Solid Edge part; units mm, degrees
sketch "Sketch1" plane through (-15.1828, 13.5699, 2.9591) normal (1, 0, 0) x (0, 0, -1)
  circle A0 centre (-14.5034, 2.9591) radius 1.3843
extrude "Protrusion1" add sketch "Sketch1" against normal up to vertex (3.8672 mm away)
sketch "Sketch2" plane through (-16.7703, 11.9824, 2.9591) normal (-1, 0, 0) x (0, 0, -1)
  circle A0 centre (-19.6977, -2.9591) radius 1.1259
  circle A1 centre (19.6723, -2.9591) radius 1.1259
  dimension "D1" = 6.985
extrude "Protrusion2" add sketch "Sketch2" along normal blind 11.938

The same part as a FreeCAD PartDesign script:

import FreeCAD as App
import Part
import Sketcher

V = App.Vector
Q = App.Units.Quantity

doc = App.newDocument("Part")
body = doc.addObject("PartDesign::Body", "Body")
body.AllowCompound = True

sketch1 = body.newObject("Sketcher::SketchObject", "Sketch")
sketch1.AttachmentSupport = (doc.getObject("YZ_Plane"), [""])
sketch1.MapMode = "FlatFace"
sketch1.AttachmentOffset = App.Placement(V(0, 0, -15.1828), App.Rotation())
sketch1.addGeometry(Part.Circle(V(16.5, 17.5, 0), V(0, 0, 1), 1.4), False)
sketch1.addConstraint([
    Sketcher.Constraint("Diameter", 0, Q("0.109 in")),
    Sketcher.Constraint("DistanceY", -1, 1, 0, 3, Q("0.6875 in")),
    Sketcher.Constraint("DistanceX", -1, 1, 0, 3, Q("16.529 mm")),
])
pad1 = body.newObject("PartDesign::Pad", "Pad")
pad1.Profile = sketch1
pad1.Length = 3.8672
pad1.Reversed = True

sketch2 = body.newObject("Sketcher::SketchObject", "Sketch001")
sketch2.AttachmentSupport = (doc.getObject("YZ_Plane"), [""])
sketch2.MapMode = "FlatFace"
sketch2.AttachmentOffset = App.Placement(V(0, 0, -16.7703), App.Rotation())
sketch2.addGeometry([
    Part.Circle(V(14.9, 22.7, 0), V(0, 0, 1), 1.1),
    Part.Circle(V(14.9, -16.7, 0), V(0, 0, 1), 1.1),
], False)
sketch2.addConstraint([
    Sketcher.Constraint("Equal", 0, 1),
    Sketcher.Constraint("Vertical", 0, 3, 1, 3),
    Sketcher.Constraint("Diameter", 0, Q("2.2518 mm")),
    Sketcher.Constraint("DistanceY", 1, 3, 0, 3, Q("1.55 in")),
    Sketcher.Constraint("DistanceY", -1, 1, 0, 3, Q("0.892 in")),
    Sketcher.Constraint("DistanceX", -1, 1, 0, 3, Q("14.9415 mm")),
])
pad2 = body.newObject("PartDesign::Pad", "Pad001")
pad2.Profile = sketch2
pad2.Length = Q("0.47 in")
pad2.Reversed = True

doc.recompute()
